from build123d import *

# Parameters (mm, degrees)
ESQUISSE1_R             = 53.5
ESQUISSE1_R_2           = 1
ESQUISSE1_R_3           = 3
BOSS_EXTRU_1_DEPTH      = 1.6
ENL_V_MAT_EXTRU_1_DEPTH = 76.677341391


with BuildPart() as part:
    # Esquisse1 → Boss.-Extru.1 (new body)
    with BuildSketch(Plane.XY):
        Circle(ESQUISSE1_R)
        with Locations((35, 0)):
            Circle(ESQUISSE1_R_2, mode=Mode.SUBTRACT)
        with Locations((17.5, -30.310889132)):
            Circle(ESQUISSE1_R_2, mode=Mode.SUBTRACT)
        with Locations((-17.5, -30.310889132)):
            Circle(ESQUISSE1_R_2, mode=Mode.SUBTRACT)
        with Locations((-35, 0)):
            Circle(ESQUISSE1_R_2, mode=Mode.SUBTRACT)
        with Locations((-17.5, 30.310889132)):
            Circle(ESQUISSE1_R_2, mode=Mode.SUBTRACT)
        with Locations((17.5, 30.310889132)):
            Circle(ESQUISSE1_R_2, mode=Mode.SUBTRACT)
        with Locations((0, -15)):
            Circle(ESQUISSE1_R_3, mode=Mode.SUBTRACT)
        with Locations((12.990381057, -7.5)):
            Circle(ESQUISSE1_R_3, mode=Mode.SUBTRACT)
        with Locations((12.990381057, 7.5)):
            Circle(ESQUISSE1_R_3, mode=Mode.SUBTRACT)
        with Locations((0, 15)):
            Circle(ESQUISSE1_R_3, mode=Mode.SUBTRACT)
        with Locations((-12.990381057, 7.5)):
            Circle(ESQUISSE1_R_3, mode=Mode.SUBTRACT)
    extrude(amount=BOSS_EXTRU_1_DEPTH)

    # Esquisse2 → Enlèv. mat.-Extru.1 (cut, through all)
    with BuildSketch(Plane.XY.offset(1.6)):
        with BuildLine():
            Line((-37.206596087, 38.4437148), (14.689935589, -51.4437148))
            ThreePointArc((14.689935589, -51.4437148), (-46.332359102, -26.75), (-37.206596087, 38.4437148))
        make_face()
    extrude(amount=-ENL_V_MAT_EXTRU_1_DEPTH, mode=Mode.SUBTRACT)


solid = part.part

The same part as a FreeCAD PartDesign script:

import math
import FreeCAD as App
import Part
import Sketcher
Q = App.Units.Quantity

doc = App.newDocument("Part")
body = doc.addObject("PartDesign::Body", "Body")

# Sketch on XY plane
sketch1 = body.newObject("Sketcher::SketchObject", "Sketch")
sketch1.AttachmentSupport = (doc.getObject("XY_Plane"), [""])
sketch1.MapMode = "FlatFace"
sketch1.addGeometry([
    Part.Circle(App.Vector(0, 0, 0), App.Vector(0, 0, 1), 53.5),  # 0
    Part.Circle(App.Vector(-17.5, -30.3, 0), App.Vector(0, 0, 1), 1),  # 1
    Part.Circle(App.Vector(17.5, -30.3, 0), App.Vector(0, 0, 1), 1),  # 2
    Part.Circle(App.Vector(0, -15, 0), App.Vector(0, 0, 1), 3),  # 3
    Part.Circle(App.Vector(13, -7.5, 0), App.Vector(0, 0, 1), 3),  # 4
    Part.Circle(App.Vector(-35, 0, 0), App.Vector(0, 0, 1), 1),  # 5
    Part.Circle(App.Vector(-13, 7.5, 0), App.Vector(0, 0, 1), 3),  # 6
    Part.Circle(App.Vector(-17.5, 30.3, 0), App.Vector(0, 0, 1), 1),  # 7
    Part.Circle(App.Vector(13, 7.5, 0), App.Vector(0, 0, 1), 3),  # 8
    Part.Circle(App.Vector(0, 15, 0), App.Vector(0, 0, 1), 3),  # 9
    Part.Circle(App.Vector(35, 0, 0), App.Vector(0, 0, 1), 1),  # 10
    Part.Circle(App.Vector(17.5, 30.3, 0), App.Vector(0, 0, 1), 1),  # 11
], False)
sketch1.addConstraint([
    Sketcher.Constraint("Coincident", 0, 3, -1, 1),
    Sketcher.Constraint("Equal", 1, 2),
    Sketcher.Constraint("Equal", 3, 4),
    Sketcher.Constraint("Equal", 2, 5),
    Sketcher.Constraint("Equal", 4, 6),
    Sketcher.Constraint("Equal", 5, 7),
    Sketcher.Constraint("Equal", 6, 8),
    Sketcher.Constraint("Equal", 8, 9),
    Sketcher.Constraint("Equal", 7, 10),
    Sketcher.Constraint("Equal", 10, 11),
    Sketcher.Constraint("Symmetric", 4, 3, 6, 3, -1, 1),
    Sketcher.Constraint("Symmetric", 2, 3, 7, 3, -1, 1),
    Sketcher.Constraint("Symmetric", 3, 3, 9, 3, -1, 1),
    Sketcher.Constraint("Symmetric", 5, 3, 10, 3, -1, 1),
    Sketcher.Constraint("Symmetric", 1, 3, 11, 3, -1, 1),
    Sketcher.Constraint("Symmetric", 1, 3, 2, 3, -2),
    Sketcher.Constraint("Symmetric", 6, 3, 8, 3, -2),
    Sketcher.Constraint("PointOnObject", 3, 3, -2),
    Sketcher.Constraint("PointOnObject", 5, 3, -1),
    Sketcher.Constraint("Diameter", 0, Q("107 mm")),
    Sketcher.Constraint("Diameter", 1, Q("2 mm")),
    Sketcher.Constraint("Diameter", 3, Q("6 mm")),
    Sketcher.Constraint("DistanceY", 3, 3, -1, 1, Q("15 mm")),
    Sketcher.Constraint("DistanceX", 5, 3, -1, 1, Q("35 mm")),
    Sketcher.Constraint("DistanceX", 1, 3, 2, 3, Q("35 mm")),
    Sketcher.Constraint("DistanceY", 4, 3, 6, 3, Q("15 mm")),
    Sketcher.Constraint("DistanceY", 1, 3, -1, 1, Q("30.310889 mm")),
    Sketcher.Constraint("DistanceX", -1, 1, 4, 3, Q("12.990381 mm")),
])
pad1 = body.newObject("PartDesign::Pad", "Pad")
pad1.Profile = sketch1
pad1.Length = 1.6

# Sketch on XY plane
sketch2 = body.newObject("Sketcher::SketchObject", "Sketch001")
sketch2.AttachmentSupport = (doc.getObject("XY_Plane"), [""])
sketch2.MapMode = "FlatFace"
sketch2.AttachmentOffset = App.Placement(App.Vector(0, 0, 1.6), App.Rotation())
sketch2.addGeometry([
    Part.LineSegment(App.Vector(15, -51, 0), App.Vector(-37, 38, 0)),
    Part.ArcOfCircle(Part.Circle(App.Vector(0, 0, 0), App.Vector(0, 0, 1), 54), math.radians(134), math.radians(286)),
], False)
sketch2.addConstraint([
    Sketcher.Constraint("Coincident", 0, 1, 1, 2),
    Sketcher.Constraint("Coincident", 1, 1, 0, 2),
    Sketcher.Constraint("Coincident", 1, 3, -1, 1),
    Sketcher.Constraint("Radius", 1, Q("53.5 mm")),
    Sketcher.Constraint("Angle", 0, Q("120 deg")),
    Sketcher.Constraint("DistanceX", 1, 1, 0, 1, Q("51.896532 mm")),
])
pocket1 = body.newObject("PartDesign::Pocket", "Pocket")
pocket1.Profile = sketch2
pocket1.Type = "ThroughAll"

doc.recompute()
